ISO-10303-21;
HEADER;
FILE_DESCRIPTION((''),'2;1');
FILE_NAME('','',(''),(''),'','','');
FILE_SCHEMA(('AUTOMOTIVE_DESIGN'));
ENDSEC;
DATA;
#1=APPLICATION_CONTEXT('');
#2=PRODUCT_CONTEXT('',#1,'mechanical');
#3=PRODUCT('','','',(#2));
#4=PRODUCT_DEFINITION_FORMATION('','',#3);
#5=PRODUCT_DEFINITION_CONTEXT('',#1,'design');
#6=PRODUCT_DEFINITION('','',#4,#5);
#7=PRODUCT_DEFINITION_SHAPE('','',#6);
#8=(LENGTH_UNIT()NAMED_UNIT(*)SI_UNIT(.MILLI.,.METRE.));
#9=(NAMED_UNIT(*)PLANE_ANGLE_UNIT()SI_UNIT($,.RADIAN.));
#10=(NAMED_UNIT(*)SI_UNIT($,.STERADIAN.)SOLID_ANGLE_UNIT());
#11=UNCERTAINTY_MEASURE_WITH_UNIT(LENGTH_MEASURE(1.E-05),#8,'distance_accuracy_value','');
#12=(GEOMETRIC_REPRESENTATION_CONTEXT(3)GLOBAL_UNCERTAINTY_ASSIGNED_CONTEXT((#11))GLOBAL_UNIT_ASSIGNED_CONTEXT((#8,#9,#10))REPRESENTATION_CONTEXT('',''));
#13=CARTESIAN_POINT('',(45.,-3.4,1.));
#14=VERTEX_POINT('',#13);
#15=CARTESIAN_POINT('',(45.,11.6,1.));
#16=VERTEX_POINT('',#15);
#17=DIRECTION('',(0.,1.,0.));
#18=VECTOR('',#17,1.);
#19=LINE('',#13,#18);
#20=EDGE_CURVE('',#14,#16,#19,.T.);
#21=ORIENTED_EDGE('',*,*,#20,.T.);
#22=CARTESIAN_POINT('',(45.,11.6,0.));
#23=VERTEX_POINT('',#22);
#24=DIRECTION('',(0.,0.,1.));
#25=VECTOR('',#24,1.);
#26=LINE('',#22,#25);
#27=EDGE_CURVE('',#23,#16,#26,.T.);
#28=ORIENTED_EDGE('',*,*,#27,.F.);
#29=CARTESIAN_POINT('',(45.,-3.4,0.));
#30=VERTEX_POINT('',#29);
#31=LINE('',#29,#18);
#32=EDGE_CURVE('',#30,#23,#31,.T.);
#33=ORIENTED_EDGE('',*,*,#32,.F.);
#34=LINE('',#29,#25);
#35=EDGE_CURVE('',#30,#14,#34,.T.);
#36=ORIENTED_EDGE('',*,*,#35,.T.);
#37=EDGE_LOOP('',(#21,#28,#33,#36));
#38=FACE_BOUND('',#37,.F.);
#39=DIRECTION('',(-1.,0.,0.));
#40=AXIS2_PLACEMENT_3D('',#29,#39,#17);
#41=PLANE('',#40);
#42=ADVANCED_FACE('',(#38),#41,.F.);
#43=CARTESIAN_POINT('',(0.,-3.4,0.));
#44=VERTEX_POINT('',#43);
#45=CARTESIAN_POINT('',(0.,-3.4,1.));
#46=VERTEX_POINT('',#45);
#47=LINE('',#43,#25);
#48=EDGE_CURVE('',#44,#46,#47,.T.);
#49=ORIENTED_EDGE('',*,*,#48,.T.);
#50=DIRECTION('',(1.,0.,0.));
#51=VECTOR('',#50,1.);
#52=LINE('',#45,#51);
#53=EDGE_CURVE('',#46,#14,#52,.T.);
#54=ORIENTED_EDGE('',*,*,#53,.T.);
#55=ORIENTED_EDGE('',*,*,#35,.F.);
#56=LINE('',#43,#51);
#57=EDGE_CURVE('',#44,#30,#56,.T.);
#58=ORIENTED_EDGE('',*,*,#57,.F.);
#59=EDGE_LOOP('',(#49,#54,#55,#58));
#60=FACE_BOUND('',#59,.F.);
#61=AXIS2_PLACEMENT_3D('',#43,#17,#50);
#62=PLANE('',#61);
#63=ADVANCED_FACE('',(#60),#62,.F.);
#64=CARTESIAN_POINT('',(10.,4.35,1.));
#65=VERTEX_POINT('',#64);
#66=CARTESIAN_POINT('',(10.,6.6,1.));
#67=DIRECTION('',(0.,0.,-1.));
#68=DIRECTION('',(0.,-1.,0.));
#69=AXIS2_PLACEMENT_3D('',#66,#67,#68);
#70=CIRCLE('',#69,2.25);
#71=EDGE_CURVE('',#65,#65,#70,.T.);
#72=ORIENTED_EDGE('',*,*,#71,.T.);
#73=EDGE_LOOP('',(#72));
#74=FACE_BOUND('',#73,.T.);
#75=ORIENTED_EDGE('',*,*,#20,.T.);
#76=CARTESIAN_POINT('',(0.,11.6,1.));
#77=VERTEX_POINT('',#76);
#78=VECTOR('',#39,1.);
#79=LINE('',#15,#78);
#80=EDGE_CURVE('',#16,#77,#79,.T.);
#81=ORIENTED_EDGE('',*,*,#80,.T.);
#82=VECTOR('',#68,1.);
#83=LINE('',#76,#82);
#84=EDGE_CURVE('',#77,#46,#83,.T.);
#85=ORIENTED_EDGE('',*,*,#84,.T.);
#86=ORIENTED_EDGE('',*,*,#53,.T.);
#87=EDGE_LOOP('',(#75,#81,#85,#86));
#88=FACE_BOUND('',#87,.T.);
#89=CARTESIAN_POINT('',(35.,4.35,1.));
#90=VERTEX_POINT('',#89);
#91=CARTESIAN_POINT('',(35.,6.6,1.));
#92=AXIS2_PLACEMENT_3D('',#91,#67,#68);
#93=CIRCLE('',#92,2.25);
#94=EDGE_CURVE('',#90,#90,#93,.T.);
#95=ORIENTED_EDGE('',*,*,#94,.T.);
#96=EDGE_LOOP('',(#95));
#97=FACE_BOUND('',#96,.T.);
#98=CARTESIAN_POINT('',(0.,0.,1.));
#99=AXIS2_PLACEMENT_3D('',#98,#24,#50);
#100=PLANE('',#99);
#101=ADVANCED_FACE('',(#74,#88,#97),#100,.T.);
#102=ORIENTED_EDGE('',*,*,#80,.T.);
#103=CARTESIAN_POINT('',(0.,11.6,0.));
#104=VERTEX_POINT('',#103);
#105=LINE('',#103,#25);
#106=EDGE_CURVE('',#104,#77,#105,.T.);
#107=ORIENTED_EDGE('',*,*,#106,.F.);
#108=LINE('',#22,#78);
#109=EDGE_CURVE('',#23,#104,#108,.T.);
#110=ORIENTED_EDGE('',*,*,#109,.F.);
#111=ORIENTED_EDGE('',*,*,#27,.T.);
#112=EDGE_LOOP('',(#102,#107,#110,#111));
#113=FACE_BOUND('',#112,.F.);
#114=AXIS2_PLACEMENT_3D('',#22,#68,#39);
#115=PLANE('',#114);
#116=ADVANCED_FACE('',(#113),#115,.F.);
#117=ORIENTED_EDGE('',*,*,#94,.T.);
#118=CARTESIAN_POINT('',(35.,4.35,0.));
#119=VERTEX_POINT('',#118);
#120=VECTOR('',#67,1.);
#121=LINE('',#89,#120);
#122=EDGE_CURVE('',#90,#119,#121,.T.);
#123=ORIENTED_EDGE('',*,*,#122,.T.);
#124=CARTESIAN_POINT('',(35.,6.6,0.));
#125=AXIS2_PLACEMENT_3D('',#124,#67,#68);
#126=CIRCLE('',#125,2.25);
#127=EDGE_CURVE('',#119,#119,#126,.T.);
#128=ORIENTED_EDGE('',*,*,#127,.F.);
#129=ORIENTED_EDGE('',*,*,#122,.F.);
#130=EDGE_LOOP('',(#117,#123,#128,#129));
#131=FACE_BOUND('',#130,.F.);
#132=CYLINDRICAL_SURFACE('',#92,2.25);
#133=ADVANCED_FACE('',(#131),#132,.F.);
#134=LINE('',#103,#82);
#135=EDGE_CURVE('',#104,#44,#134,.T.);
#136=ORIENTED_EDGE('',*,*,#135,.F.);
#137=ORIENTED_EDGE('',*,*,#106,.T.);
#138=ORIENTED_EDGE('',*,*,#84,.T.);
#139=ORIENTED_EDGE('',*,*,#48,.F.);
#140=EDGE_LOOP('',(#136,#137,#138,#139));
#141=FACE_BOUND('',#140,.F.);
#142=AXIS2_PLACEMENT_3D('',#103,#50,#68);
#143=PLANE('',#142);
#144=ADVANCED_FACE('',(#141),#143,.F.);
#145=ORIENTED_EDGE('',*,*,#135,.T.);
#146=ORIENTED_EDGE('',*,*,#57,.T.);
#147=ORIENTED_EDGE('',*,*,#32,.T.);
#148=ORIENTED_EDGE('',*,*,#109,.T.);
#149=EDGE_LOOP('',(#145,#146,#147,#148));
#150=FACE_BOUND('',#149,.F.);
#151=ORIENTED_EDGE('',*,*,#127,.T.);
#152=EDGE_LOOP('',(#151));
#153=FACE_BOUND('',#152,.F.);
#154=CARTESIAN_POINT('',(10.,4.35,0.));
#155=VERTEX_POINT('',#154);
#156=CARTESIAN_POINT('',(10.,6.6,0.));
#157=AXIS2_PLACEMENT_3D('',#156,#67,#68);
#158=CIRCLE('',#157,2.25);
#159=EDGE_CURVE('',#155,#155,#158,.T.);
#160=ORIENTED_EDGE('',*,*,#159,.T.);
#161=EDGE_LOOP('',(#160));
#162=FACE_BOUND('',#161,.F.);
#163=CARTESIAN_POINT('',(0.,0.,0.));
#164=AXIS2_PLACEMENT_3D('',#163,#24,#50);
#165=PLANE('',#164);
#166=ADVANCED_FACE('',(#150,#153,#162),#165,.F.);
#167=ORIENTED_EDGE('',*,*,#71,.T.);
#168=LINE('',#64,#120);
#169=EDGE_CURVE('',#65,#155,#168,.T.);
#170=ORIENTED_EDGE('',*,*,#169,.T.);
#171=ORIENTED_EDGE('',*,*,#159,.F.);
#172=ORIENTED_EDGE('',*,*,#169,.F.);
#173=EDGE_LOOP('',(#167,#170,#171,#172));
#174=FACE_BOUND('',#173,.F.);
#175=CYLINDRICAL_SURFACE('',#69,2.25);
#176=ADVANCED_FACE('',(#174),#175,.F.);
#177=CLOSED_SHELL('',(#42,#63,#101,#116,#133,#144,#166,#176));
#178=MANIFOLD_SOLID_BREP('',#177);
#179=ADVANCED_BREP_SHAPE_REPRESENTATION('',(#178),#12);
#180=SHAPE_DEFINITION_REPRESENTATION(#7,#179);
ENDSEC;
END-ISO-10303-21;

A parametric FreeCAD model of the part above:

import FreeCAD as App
import Part
import Sketcher

V = App.Vector
Q = App.Units.Quantity


def add_polygon(sketch, points):
    """Adds a closed chain of lines whose ends are joined by coincident constraints."""
    first, n = sketch.GeometryCount, len(points)
    for a, b in zip(points, points[1:] + points[:1]):
        sketch.addGeometry(Part.LineSegment(App.Vector(*a, 0), App.Vector(*b, 0)), False)
    for i in range(n):
        sketch.addConstraint(Sketcher.Constraint("Coincident", first + i, 2, first + (i + 1) % n, 1))

doc = App.newDocument("Part")
body = doc.addObject("PartDesign::Body", "Body")

# Sketch on XY plane
sketch1 = doc.addObject("Sketcher::SketchObject", "Sketch")
body.addObject(sketch1)
sketch1.AttachmentSupport = (doc.XY_Plane, [""])
sketch1.MapMode = "FlatFace"
add_polygon(sketch1, [(0, 11.6), (0, -3.4), (45, -3.4), (45, 11.6)])  # lines 0-3
sketch1.addConstraint(Sketcher.Constraint("Vertical", 0))
sketch1.addConstraint(Sketcher.Constraint("Horizontal", 1))
sketch1.addConstraint(Sketcher.Constraint("Vertical", 2))
sketch1.addConstraint(Sketcher.Constraint("Horizontal", 3))
sketch1.addConstraint(Sketcher.Constraint("PointOnObject", 0, 2, -2))
sketch1.addConstraint(Sketcher.Constraint("DistanceX", 1, 1, 1, 2, Q("45 mm")))
sketch1.addConstraint(Sketcher.Constraint("DistanceY", 0, 2, 0, 1, Q("15 mm")))
sketch1.addConstraint(Sketcher.Constraint("DistanceY", 0, 2, -1, 1, Q("3.4 mm")))
pad1 = doc.addObject("PartDesign::Pad", "Pad")
body.addObject(pad1)
pad1.Profile = sketch1
pad1.Length = 1

# Sketch on XY plane
sketch2 = doc.addObject("Sketcher::SketchObject", "Sketch001")
body.addObject(sketch2)
sketch2.AttachmentSupport = (doc.XY_Plane, [""])
sketch2.MapMode = "FlatFace"
sketch2.AttachmentOffset = App.Placement(V(0, 0, 1), App.Rotation())
sketch2.addGeometry(Part.Circle(V(35, 6.6, 0), V(0, 0, 1), 2.25), False)
sketch2.addGeometry(Part.Circle(V(10, 6.6, 0), V(0, 0, 1), 2.25), False)
sketch2.addConstraint(Sketcher.Constraint("Equal", 0, 1))
sketch2.addConstraint(Sketcher.Constraint("Horizontal", 0, 3, 1, 3))
sketch2.addConstraint(Sketcher.Constraint("Diameter", 0, Q("4.5 mm")))
sketch2.addConstraint(Sketcher.Constraint("DistanceX", -1, 1, 0, 3, Q("35 mm")))
sketch2.addConstraint(Sketcher.Constraint("DistanceX", -1, 1, 1, 3, Q("10 mm")))
sketch2.addConstraint(Sketcher.Constraint("DistanceY", -1, 1, 0, 3, Q("6.6 mm")))
doc.recompute()
hole = doc.addObject("PartDesign::Hole", "Hole")
body.addObject(hole)
hole.Profile = sketch2
hole.ThreadType = "None"
hole.Diameter = 4.5
hole.DepthType = "ThroughAll"

doc.recompute()
